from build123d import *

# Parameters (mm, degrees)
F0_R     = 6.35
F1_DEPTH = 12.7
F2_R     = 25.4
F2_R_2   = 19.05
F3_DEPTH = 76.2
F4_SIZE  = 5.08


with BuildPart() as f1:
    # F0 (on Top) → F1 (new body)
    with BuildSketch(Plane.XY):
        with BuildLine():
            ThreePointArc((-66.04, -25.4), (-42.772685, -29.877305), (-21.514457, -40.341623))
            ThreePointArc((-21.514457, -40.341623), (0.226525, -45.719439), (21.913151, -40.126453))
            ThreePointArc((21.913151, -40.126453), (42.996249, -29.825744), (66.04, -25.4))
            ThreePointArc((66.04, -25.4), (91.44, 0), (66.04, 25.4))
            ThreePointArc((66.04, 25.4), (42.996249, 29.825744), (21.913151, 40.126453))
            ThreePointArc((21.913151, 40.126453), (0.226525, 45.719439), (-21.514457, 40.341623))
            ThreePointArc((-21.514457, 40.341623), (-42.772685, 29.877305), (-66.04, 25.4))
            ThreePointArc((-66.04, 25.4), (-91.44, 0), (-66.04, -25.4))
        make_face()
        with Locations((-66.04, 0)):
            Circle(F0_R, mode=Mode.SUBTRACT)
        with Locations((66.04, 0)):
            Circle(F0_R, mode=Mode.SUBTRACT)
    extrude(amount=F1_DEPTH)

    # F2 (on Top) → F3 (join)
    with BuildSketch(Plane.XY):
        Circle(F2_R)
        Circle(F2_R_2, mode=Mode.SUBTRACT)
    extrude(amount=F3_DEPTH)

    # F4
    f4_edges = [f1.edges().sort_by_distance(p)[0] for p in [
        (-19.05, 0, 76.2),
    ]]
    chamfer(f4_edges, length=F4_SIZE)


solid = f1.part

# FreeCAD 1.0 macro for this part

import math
import FreeCAD as App
import Part
import Sketcher
Q = App.Units.Quantity


def edges_at(feature, points):
    """Names of the edges that pass closest to the given points."""
    edges = feature.Shape.Edges
    near = lambda p: min(range(len(edges)), key=lambda i: edges[i].distToShape(Part.Vertex(*p))[0])
    return sorted({f"Edge{near(p) + 1}" for p in points})

doc = App.newDocument("Part")
body = doc.addObject("PartDesign::Body", "Body")

sketch1 = body.newObject("Sketcher::SketchObject", "Sketch")
sketch1.AttachmentSupport = (doc.getObject("XY_Plane"), [""])
sketch1.MapMode = "FlatFace"
sketch1.addGeometry([
    Part.ArcOfCircle(Part.Circle(App.Vector(-71.055249, -114.158411, 0), App.Vector(0, 0, 1), 88.89999), math.radians(56.133183), math.radians(86.76597)),
    Part.ArcOfCircle(Part.Circle(App.Vector(0, 0, 0), App.Vector(0, 0, 1), 45.72), math.radians(-118.071298), math.radians(-61.360942)),
    Part.ArcOfCircle(Part.Circle(App.Vector(71.139, -114.153647, 0), App.Vector(0, 0, 1), 88.899998), math.radians(93.288095), math.radians(123.622707)),
    Part.ArcOfCircle(Part.Circle(App.Vector(66.04, 0, 0), App.Vector(0, 0, 1), 25.4), math.radians(-90), math.radians(90)),
    Part.ArcOfCircle(Part.Circle(App.Vector(71.139, 114.153647, 0), App.Vector(0, 0, 1), 88.899998), math.radians(-123.622707), math.radians(-93.288095)),
    Part.ArcOfCircle(Part.Circle(App.Vector(0, 0, 0), App.Vector(0, 0, 1), 45.72), math.radians(61.360942), math.radians(118.071298)),
    Part.ArcOfCircle(Part.Circle(App.Vector(-71.055249, 114.158411, 0), App.Vector(0, 0, 1), 88.89999), math.radians(-86.76597), math.radians(-56.133183)),
    Part.ArcOfCircle(Part.Circle(App.Vector(-66.04, 0, 0), App.Vector(0, 0, 1), 25.4), math.radians(90), math.radians(270)),
    Part.Circle(App.Vector(-66.04, 0, 0), App.Vector(0, 0, 1), 6.35),
    Part.Circle(App.Vector(66.04, 0, 0), App.Vector(0, 0, 1), 6.35),
], False)
sketch1.addConstraint([
    Sketcher.Constraint("Coincident", 0, 1, 1, 1),
    Sketcher.Constraint("Coincident", 1, 2, 2, 2),
    Sketcher.Constraint("Coincident", 2, 1, 3, 1),
    Sketcher.Constraint("Coincident", 3, 2, 4, 2),
    Sketcher.Constraint("Coincident", 4, 1, 5, 1),
    Sketcher.Constraint("Coincident", 5, 2, 6, 2),
    Sketcher.Constraint("Coincident", 6, 1, 7, 1),
    Sketcher.Constraint("Coincident", 7, 2, 0, 2),
    Sketcher.Constraint("Coincident", 1, 3, -1, 1),
    Sketcher.Constraint("Coincident", 5, 3, -1, 1),
    Sketcher.Constraint("Coincident", 8, 3, 7, 3),
    Sketcher.Constraint("Coincident", 9, 3, 3, 3),
    Sketcher.Constraint("Equal", 2, 4),
    Sketcher.Constraint("Equal", 1, 5),
    Sketcher.Constraint("Equal", 0, 6),
    Sketcher.Constraint("Equal", 3, 7),
    Sketcher.Constraint("Equal", 8, 9),
    Sketcher.Constraint("Symmetric", 3, 3, 7, 3, -1, 1),
    Sketcher.Constraint("Symmetric", 3, 2, 6, 1, -2),
    Sketcher.Constraint("Symmetric", 2, 3, 4, 3, -1),
    Sketcher.Constraint("Symmetric", 0, 3, 6, 3, -1),
    Sketcher.Constraint("Vertical", 9, 3, 2, 1),
    Sketcher.Constraint("Radius", 3, Q("1 in")),
    Sketcher.Constraint("Diameter", 8, Q("0.5 in")),
    Sketcher.Constraint("Radius", 1, Q("1.8 in")),
    Sketcher.Constraint("Radius", 2, Q("3.4999999 in")),
    Sketcher.Constraint("DistanceX", -1, 1, 3, 3, Q("2.6 in")),
    Sketcher.Constraint("Radius", 0, 88.89999),
    Sketcher.Constraint("DistanceX", -1, 1, 2, 3, 71.139),
    Sketcher.Constraint("DistanceX", 0, 3, -1, 1, 71.055249),
])
pad1 = body.newObject("PartDesign::Pad", "Pad")
pad1.Profile = sketch1
pad1.Length = Q("0.5 in")

sketch2 = body.newObject("Sketcher::SketchObject", "Sketch001")
sketch2.AttachmentSupport = (doc.getObject("XY_Plane"), [""])
sketch2.MapMode = "FlatFace"
sketch2.addGeometry([
    Part.Circle(App.Vector(0, 0, 0), App.Vector(0, 0, 1), 25.4),
    Part.Circle(App.Vector(0, 0, 0), App.Vector(0, 0, 1), 19.05),
], False)
sketch2.addConstraint([
    Sketcher.Constraint("Coincident", 0, 3, -1, 1),
    Sketcher.Constraint("Coincident", 1, 3, -1, 1),
    Sketcher.Constraint("Diameter", 0, Q("2 in")),
    Sketcher.Constraint("Diameter", 1, Q("1.5 in")),
])
pad2 = body.newObject("PartDesign::Pad", "Pad001")
pad2.Profile = sketch2
pad2.Length = Q("3 in")
doc.recompute()

chamfer = body.newObject("PartDesign::Chamfer", "Chamfer")
chamfer.Base = (pad2, edges_at(pad2, [(-19.05, 0, 76.2)]))
chamfer.Size = Q("0.2 in")

doc.recompute()
